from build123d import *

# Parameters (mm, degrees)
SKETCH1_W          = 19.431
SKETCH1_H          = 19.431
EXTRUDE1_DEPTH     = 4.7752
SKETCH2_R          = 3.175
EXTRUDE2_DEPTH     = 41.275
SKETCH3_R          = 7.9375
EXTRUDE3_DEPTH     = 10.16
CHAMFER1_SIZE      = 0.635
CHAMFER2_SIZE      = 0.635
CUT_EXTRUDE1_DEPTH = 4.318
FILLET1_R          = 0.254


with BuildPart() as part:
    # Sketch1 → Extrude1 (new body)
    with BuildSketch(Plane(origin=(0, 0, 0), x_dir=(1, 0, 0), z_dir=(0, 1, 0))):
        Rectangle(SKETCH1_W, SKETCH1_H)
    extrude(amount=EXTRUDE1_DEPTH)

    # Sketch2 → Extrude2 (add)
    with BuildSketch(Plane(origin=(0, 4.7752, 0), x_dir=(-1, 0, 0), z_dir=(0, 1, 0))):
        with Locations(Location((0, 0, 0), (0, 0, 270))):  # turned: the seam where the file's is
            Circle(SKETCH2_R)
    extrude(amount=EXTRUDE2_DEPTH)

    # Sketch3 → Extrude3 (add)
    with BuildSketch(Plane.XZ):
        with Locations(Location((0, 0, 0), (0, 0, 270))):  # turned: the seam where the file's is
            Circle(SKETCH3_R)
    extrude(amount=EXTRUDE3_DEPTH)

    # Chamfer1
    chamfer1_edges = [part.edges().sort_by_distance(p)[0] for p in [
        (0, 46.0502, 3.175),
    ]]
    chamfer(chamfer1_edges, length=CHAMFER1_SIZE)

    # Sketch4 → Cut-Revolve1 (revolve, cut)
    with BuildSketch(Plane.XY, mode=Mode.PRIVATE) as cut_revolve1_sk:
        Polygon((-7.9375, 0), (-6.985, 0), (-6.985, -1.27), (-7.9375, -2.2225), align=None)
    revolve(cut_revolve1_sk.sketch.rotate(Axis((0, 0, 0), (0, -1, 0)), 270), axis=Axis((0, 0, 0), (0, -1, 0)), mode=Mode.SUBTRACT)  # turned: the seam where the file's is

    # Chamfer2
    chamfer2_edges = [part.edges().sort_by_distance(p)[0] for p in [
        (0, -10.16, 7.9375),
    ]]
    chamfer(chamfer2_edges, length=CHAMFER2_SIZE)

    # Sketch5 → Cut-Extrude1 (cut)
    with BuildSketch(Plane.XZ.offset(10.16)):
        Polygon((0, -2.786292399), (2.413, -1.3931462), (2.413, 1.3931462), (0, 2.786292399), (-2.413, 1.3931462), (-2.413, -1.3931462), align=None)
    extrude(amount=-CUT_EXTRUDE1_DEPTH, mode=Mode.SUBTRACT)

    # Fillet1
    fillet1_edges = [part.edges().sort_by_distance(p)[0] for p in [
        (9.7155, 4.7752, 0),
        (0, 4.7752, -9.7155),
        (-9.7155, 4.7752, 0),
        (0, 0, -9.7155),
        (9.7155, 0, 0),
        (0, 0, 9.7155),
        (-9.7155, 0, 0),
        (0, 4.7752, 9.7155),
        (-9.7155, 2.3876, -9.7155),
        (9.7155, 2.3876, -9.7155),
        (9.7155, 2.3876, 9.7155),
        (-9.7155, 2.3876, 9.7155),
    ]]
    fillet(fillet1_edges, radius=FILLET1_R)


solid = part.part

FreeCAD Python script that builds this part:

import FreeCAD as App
import Part
import Sketcher

V = App.Vector
Q = App.Units.Quantity


def edges_at(feature, points):
    """Names of the edges that pass closest to the given points."""
    edges = feature.Shape.Edges
    near = lambda p: min(range(len(edges)), key=lambda i: edges[i].distToShape(Part.Vertex(*p))[0])
    return sorted({f"Edge{near(p) + 1}" for p in points})

doc = App.newDocument("Part")
body = doc.addObject("PartDesign::Body", "Body")

# Sketch on XZ plane
sketch1 = body.newObject("Sketcher::SketchObject", "Sketch")
sketch1.AttachmentSupport = (doc.getObject("XZ_Plane"), [""])
sketch1.MapMode = "FlatFace"
sketch1.addGeometry([
    Part.LineSegment(V(-10, -10, 0), V(-10, 10, 0)),
    Part.LineSegment(V(-10, 10, 0), V(10, 10, 0)),
    Part.LineSegment(V(10, 10, 0), V(10, -10, 0)),
    Part.LineSegment(V(10, -10, 0), V(-10, -10, 0)),
], False)
sketch1.addConstraint([
    Sketcher.Constraint("Coincident", 0, 2, 1, 1),
    Sketcher.Constraint("Coincident", 1, 2, 2, 1),
    Sketcher.Constraint("Coincident", 2, 2, 3, 1),
    Sketcher.Constraint("Coincident", 3, 2, 0, 1),
    Sketcher.Constraint("Vertical", 0),
    Sketcher.Constraint("Horizontal", 1),
    Sketcher.Constraint("Vertical", 2),
    Sketcher.Constraint("Horizontal", 3),
    Sketcher.Constraint("Symmetric", 0, 2, 2, 2, -1, 1),
    Sketcher.Constraint("Equal", 3, 0),
    Sketcher.Constraint("DistanceX", 1, 1, 1, 2, Q("0.765 in")),
])
pad1 = body.newObject("PartDesign::Pad", "Pad")
pad1.Profile = sketch1
pad1.Length = Q("0.188 in")
pad1.Reversed = True

# Sketch on XZ plane
sketch2 = body.newObject("Sketcher::SketchObject", "Sketch001")
sketch2.AttachmentSupport = (doc.getObject("XZ_Plane"), [""])
sketch2.MapMode = "FlatFace"
sketch2.AttachmentOffset = App.Placement(V(0, 0, -0.188 * 25.4), App.Rotation())
sketch2.addGeometry(Part.Circle(V(0, 0, 0), V(0, 0, 1), 3.2), False)
sketch2.addConstraint([
    Sketcher.Constraint("Coincident", 0, 3, -1, 1),
    Sketcher.Constraint("Diameter", 0, Q("0.25 in")),
])
pad2 = body.newObject("PartDesign::Pad", "Pad001")
pad2.Profile = sketch2
pad2.Length = Q("1.625 in")
pad2.Reversed = True

# Sketch on XZ plane
sketch3 = body.newObject("Sketcher::SketchObject", "Sketch002")
sketch3.AttachmentSupport = (doc.getObject("XZ_Plane"), [""])
sketch3.MapMode = "FlatFace"
sketch3.addGeometry(Part.Circle(V(0, 0, 0), V(0, 0, 1), 8), False)
sketch3.addConstraint([
    Sketcher.Constraint("Coincident", 0, 3, -1, 1),
    Sketcher.Constraint("Diameter", 0, Q("0.625 in")),
])
pad3 = body.newObject("PartDesign::Pad", "Pad002")
pad3.Profile = sketch3
pad3.Length = Q("0.4 in")
doc.recompute()

chamfer = body.newObject("PartDesign::Chamfer", "Chamfer")
chamfer.Base = (pad3, edges_at(pad3, [(0, 46.05, 3.175)]))
chamfer.Size = Q("0.025 in")

# Sketch on XY plane
sketch4 = body.newObject("Sketcher::SketchObject", "Sketch003")
sketch4.AttachmentSupport = (doc.getObject("XY_Plane"), [""])
sketch4.MapMode = "FlatFace"
sketch4.addGeometry([
    Part.LineSegment(V(-7, 0, 0), V(-7.9, 0, 0)),
    Part.LineSegment(V(-7.9, 0, 0), V(-7.9, -2.2, 0)),
    Part.LineSegment(V(-7.9, -2.2, 0), V(-7, -1.3, 0)),
    Part.LineSegment(V(-7, -1.3, 0), V(-7, 0, 0)),
], False)
sketch4.addConstraint([
    Sketcher.Constraint("Coincident", 0, 2, 1, 1),
    Sketcher.Constraint("Coincident", 1, 2, 2, 1),
    Sketcher.Constraint("Coincident", 2, 2, 3, 1),
    Sketcher.Constraint("Coincident", 3, 2, 0, 1),
    Sketcher.Constraint("Horizontal", 0),
    Sketcher.Constraint("Vertical", 1),
    Sketcher.Constraint("Vertical", 3),
    Sketcher.Constraint("PointOnObject", 0, 2, -1),
    Sketcher.Constraint("Angle", 2, Q("45 deg")),
    Sketcher.Constraint("DistanceY", 3, 1, 3, 2, Q("0.05 in")),
    Sketcher.Constraint("DistanceX", 0, 2, 0, 1, Q("0.0375 in")),
    Sketcher.Constraint("DistanceX", 0, 2, -1, 1, Q("0.3125 in")),
])
groove = body.newObject("PartDesign::Groove", "Groove")
groove.Profile = sketch4
groove.ReferenceAxis = (sketch4, ["V_Axis"])
groove.Angle = 360
doc.recompute()

chamfer2 = body.newObject("PartDesign::Chamfer", "Chamfer001")
chamfer2.Base = (groove, edges_at(groove, [(0, -10.16, 7.938)]))
chamfer2.Size = Q("0.025 in")

# Sketch on XZ plane
sketch5 = body.newObject("Sketcher::SketchObject", "Sketch004")
sketch5.AttachmentSupport = (doc.getObject("XZ_Plane"), [""])
sketch5.MapMode = "FlatFace"
sketch5.AttachmentOffset = App.Placement(V(0, 0, 0.4 * 25.4), App.Rotation())
sketch5.addGeometry([
    Part.LineSegment(V(0, -2.8, 0), V(2.4, -1.4, 0)),  # 0
    Part.LineSegment(V(2.4, -1.4, 0), V(2.4, 1.4, 0)),  # 1
    Part.LineSegment(V(2.4, 1.4, 0), V(0, 2.8, 0)),  # 2
    Part.LineSegment(V(0, 2.8, 0), V(-2.4, 1.4, 0)),  # 3
    Part.LineSegment(V(-2.4, 1.4, 0), V(-2.4, -1.4, 0)),  # 4
    Part.LineSegment(V(-2.4, -1.4, 0), V(0, -2.8, 0)),  # 5
], False)
sketch5.addConstraint([
    Sketcher.Constraint("Coincident", 0, 2, 1, 1),
    Sketcher.Constraint("Coincident", 1, 2, 2, 1),
    Sketcher.Constraint("Coincident", 2, 2, 3, 1),
    Sketcher.Constraint("Coincident", 3, 2, 4, 1),
    Sketcher.Constraint("Coincident", 4, 2, 5, 1),
    Sketcher.Constraint("Coincident", 5, 2, 0, 1),
    Sketcher.Constraint("Vertical", 1),
    Sketcher.Constraint("Vertical", 4),
    Sketcher.Constraint("Symmetric", 0, 2, 3, 2, -1, 1),
    Sketcher.Constraint("Symmetric", 2, 2, 5, 2, -1, 1),
    Sketcher.Constraint("PointOnObject", 2, 2, -2),
    Sketcher.Constraint("Parallel", 2, 5),
    Sketcher.Constraint("Horizontal", 1, 2, 3, 2),
    Sketcher.Constraint("Angle", 0, Q("30 deg")),
    Sketcher.Constraint("DistanceX", 3, 2, 1, 2, Q("0.19 in")),
    Sketcher.Constraint("DistanceY", 1, 1, 1, 2, 2.786292),
])
pocket1 = body.newObject("PartDesign::Pocket", "Pocket")
pocket1.Profile = sketch5
pocket1.Length = Q("0.17 in")
doc.recompute()

fillet = body.newObject("PartDesign::Fillet", "Fillet")
fillet.Base = (pocket1, edges_at(pocket1, [
    (9.716, 4.775, 0),
    (0, 4.775, -9.716),
    (-9.716, 4.775, 0),
    (0, 0, -9.716),
    (9.716, 0, 0),
    (0, 0, 9.716),
    (-9.716, 0, 0),
    (0, 4.775, 9.716),
    (-9.716, 2.388, -9.716),
    (9.716, 2.388, -9.716),
    (9.716, 2.388, 9.716),
    (-9.716, 2.388, 9.716),
]))
fillet.Radius = Q("0.01 in")

doc.recompute()
